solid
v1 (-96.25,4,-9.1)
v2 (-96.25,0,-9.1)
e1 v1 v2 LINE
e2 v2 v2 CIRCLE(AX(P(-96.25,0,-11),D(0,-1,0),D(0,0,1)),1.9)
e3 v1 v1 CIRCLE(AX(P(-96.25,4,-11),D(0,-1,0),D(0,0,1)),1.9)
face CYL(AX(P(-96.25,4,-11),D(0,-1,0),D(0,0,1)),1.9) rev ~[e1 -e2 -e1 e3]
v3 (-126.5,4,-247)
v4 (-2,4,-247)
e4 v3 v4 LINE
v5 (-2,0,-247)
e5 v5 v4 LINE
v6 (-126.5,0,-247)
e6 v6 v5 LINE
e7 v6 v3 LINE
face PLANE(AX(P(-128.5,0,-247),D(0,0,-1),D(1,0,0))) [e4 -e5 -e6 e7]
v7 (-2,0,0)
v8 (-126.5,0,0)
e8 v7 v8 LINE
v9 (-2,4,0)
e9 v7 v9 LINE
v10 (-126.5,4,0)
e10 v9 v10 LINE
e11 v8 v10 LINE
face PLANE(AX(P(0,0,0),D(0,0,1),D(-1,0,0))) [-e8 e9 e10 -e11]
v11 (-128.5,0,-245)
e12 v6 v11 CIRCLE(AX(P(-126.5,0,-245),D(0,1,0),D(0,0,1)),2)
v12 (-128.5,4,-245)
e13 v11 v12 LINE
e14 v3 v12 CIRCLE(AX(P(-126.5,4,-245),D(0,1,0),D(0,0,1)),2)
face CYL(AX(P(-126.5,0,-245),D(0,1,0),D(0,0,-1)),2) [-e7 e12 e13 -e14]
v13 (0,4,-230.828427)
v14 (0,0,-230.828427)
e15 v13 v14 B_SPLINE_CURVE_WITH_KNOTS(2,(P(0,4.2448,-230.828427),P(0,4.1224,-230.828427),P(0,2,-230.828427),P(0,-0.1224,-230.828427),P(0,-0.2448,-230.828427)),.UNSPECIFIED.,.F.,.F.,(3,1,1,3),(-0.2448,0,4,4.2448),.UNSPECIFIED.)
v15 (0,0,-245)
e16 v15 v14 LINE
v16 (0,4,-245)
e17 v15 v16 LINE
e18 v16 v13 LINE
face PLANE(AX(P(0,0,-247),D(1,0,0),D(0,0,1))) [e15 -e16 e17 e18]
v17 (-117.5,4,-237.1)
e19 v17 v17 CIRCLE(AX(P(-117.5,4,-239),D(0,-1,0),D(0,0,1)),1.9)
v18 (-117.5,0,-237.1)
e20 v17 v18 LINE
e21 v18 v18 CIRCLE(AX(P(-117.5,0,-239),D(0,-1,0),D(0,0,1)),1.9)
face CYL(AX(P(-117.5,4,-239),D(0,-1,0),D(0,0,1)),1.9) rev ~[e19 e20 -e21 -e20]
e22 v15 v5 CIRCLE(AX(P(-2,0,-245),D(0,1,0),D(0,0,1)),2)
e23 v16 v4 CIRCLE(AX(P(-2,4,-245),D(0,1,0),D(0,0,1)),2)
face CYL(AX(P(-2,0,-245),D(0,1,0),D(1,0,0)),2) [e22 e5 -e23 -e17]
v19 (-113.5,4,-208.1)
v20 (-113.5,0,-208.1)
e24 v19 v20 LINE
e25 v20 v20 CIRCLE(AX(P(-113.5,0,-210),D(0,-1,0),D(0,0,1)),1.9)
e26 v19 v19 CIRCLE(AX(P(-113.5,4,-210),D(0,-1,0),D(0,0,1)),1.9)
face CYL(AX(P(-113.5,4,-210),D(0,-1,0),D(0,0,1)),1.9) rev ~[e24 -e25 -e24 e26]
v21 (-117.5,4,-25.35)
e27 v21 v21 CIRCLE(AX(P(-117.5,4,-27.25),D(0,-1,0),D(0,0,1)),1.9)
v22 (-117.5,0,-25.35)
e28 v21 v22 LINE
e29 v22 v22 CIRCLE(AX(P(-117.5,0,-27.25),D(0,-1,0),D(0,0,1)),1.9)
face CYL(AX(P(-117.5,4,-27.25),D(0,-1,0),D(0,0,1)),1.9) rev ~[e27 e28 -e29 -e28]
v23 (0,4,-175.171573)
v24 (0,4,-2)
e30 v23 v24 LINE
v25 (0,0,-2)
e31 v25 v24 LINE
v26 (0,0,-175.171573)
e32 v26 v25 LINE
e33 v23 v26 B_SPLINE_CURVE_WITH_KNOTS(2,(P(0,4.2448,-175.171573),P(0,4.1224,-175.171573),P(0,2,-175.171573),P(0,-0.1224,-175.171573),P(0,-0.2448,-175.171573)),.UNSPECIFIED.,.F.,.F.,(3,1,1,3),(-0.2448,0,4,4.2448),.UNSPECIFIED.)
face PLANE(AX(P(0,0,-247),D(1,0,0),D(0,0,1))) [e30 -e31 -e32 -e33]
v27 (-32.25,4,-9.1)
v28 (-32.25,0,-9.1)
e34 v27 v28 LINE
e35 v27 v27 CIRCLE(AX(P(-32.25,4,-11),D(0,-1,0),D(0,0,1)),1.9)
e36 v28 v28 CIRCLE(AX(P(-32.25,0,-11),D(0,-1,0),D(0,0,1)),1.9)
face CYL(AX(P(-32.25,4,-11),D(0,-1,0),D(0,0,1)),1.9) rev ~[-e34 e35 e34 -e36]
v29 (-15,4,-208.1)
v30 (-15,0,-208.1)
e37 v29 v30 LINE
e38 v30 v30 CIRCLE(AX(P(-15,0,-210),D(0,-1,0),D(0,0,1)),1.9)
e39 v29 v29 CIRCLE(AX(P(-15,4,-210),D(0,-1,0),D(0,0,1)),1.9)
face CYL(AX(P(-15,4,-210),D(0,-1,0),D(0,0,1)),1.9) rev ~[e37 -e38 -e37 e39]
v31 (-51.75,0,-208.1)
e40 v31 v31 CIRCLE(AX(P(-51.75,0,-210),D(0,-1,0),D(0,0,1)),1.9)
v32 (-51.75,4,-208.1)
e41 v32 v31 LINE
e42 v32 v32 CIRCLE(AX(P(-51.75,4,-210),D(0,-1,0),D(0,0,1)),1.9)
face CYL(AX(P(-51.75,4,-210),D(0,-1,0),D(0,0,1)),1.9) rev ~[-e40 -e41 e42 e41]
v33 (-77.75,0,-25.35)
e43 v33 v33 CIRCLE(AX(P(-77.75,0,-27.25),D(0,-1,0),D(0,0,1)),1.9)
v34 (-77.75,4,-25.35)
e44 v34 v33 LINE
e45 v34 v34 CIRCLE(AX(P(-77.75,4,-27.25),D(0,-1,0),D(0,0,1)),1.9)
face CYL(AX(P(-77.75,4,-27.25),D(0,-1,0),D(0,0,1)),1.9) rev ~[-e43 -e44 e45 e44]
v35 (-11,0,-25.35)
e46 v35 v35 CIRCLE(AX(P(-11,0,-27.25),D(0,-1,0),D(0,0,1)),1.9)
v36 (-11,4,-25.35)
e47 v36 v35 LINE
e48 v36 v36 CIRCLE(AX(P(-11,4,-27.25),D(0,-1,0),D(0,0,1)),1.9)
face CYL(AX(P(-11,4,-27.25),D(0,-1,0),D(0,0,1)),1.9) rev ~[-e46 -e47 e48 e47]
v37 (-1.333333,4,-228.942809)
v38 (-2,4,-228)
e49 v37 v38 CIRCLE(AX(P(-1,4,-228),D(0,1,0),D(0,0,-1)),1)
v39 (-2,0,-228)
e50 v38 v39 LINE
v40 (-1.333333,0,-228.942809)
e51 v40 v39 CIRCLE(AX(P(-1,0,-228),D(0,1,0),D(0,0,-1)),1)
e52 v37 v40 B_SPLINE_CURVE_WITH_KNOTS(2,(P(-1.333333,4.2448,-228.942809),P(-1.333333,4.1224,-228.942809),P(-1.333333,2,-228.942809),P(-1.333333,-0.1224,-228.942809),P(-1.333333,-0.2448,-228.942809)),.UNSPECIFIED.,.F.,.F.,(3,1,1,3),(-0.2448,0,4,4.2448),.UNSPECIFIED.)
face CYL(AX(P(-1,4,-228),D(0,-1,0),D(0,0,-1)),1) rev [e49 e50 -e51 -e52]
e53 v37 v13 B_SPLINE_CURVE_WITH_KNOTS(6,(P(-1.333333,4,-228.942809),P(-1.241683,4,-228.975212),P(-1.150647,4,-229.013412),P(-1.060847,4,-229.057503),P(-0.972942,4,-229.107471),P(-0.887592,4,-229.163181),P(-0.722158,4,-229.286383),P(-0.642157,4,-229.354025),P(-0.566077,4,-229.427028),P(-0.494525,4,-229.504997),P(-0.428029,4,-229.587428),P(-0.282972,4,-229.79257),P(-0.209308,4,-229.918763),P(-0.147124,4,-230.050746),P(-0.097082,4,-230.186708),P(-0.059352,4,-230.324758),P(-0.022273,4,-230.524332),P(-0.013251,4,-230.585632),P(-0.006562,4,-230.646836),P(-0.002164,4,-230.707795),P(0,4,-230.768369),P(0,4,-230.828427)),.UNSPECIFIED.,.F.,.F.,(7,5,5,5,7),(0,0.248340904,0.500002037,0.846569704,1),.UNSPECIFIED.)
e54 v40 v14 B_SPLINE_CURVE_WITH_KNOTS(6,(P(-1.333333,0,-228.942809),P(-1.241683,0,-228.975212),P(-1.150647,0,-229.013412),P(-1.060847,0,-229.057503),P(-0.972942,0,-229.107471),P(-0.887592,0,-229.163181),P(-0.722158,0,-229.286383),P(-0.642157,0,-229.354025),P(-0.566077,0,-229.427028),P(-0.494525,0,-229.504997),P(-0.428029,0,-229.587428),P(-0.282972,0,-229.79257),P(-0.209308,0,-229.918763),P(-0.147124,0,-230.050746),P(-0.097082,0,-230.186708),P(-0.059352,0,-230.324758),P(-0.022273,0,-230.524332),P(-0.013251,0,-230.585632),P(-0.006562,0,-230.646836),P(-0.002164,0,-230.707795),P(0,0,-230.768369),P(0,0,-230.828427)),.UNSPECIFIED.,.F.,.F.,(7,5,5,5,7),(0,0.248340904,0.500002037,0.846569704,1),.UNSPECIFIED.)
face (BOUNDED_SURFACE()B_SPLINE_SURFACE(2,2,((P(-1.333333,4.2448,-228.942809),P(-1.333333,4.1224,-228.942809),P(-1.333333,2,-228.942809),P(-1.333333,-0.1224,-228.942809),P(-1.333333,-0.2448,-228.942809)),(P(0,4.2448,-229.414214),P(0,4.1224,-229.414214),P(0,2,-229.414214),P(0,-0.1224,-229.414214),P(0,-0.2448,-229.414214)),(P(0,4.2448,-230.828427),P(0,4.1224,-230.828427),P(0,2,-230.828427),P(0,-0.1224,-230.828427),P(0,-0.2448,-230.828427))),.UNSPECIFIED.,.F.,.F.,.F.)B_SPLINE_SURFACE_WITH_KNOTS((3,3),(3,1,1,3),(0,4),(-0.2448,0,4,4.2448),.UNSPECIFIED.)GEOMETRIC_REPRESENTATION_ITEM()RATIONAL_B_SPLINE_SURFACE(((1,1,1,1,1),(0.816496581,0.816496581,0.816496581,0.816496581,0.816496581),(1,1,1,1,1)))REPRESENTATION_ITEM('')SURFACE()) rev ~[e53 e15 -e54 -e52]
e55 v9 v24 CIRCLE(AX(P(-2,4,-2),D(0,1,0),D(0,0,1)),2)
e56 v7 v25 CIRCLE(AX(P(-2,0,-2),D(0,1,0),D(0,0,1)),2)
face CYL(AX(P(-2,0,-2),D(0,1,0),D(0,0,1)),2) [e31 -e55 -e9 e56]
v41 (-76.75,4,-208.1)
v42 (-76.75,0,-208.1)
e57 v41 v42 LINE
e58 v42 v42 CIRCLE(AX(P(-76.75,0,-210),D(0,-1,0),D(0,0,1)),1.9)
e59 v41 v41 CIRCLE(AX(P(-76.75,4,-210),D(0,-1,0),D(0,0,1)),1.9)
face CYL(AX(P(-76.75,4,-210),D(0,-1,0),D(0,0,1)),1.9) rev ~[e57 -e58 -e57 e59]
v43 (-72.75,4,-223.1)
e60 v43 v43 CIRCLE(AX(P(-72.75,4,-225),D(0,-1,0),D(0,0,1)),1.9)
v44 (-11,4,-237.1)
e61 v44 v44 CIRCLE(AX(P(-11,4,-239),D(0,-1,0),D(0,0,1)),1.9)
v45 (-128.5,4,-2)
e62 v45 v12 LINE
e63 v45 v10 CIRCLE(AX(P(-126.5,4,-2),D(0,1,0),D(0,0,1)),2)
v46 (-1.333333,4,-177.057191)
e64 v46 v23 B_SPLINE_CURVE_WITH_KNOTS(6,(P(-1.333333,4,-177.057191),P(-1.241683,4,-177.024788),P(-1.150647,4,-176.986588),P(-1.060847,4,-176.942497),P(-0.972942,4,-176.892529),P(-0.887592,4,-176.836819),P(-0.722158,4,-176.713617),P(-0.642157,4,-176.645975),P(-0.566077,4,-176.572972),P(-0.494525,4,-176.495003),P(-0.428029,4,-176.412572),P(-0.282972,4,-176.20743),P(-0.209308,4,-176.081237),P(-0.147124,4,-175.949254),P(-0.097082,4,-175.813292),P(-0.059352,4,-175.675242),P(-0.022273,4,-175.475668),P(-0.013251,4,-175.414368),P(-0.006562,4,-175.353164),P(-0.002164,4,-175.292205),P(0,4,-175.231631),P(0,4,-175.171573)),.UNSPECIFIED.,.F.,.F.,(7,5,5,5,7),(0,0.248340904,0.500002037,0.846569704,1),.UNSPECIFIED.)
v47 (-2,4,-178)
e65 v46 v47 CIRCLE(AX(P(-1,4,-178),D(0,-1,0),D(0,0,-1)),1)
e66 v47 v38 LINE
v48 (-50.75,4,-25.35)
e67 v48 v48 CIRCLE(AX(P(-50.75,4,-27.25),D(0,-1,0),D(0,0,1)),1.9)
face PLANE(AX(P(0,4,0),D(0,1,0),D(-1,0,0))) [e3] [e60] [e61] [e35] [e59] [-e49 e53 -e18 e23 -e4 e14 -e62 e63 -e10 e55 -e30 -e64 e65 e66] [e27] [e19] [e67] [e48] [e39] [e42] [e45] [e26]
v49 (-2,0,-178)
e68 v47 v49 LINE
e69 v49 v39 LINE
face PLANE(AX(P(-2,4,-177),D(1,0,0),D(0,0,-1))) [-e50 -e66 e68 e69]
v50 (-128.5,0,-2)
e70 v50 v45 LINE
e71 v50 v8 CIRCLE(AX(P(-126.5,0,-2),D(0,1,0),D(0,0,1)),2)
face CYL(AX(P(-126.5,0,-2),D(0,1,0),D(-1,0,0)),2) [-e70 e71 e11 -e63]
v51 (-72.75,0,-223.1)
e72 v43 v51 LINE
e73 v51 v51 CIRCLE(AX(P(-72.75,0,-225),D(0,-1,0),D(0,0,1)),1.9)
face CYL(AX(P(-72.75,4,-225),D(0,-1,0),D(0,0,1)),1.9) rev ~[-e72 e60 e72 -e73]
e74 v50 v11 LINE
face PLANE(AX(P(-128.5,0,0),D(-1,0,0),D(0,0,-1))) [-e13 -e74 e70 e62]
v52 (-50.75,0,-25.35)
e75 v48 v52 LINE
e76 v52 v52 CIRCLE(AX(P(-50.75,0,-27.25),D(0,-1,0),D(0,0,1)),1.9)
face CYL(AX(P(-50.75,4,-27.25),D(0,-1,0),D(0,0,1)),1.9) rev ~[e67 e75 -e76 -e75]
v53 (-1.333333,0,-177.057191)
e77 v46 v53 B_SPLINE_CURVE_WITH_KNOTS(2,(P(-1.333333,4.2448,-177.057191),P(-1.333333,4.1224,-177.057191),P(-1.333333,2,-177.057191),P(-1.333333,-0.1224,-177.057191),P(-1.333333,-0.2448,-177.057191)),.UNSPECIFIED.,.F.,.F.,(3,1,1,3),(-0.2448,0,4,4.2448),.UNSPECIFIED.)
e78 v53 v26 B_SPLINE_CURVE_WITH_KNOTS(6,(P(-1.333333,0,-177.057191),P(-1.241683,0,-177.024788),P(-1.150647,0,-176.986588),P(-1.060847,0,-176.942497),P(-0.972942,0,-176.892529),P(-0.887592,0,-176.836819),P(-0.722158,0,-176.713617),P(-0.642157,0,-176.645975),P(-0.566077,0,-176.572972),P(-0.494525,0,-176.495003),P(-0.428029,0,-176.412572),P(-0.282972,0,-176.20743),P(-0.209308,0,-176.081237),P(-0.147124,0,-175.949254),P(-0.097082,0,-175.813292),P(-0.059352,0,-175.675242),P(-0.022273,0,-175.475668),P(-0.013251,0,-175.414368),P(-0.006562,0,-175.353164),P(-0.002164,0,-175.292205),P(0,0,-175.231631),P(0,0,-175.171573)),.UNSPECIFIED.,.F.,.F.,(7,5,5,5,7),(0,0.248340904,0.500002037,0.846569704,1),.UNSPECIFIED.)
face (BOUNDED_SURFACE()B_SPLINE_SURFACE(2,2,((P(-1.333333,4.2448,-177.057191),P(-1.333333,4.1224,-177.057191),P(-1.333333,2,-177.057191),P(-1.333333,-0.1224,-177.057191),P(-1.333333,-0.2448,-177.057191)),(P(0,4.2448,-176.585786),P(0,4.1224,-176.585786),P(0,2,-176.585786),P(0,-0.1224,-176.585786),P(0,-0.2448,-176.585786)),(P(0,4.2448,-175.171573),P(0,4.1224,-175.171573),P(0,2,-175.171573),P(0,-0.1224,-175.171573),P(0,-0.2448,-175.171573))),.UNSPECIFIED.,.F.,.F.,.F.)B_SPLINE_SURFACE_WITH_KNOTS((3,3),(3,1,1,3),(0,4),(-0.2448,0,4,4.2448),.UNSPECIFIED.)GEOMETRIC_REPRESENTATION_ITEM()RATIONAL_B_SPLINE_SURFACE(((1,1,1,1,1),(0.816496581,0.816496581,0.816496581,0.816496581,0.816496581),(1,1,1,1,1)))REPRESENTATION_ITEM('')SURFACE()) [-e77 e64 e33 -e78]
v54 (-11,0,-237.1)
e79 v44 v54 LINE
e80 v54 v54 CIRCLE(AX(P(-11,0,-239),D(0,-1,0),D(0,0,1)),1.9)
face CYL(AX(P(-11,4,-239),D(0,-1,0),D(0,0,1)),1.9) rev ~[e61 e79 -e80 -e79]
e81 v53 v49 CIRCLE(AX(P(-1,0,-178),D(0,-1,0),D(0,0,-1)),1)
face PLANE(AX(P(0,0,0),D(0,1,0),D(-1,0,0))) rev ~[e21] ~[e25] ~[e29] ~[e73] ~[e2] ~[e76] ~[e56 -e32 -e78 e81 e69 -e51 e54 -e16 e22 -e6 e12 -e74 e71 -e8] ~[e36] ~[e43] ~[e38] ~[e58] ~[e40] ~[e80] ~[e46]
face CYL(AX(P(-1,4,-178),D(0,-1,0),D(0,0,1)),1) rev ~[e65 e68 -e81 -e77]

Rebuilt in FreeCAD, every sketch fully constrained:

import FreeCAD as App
import Part
import Sketcher
from FreeCAD import Vector
Q = App.Units.Quantity


def edges_at(feature, points):
    """Names of the edges that pass closest to the given points."""
    edges = feature.Shape.Edges
    near = lambda p: min(range(len(edges)), key=lambda i: edges[i].distToShape(Part.Vertex(*p))[0])
    return sorted({f"Edge{near(p) + 1}" for p in points})

doc = App.newDocument("Part")
params = doc.addObject("Spreadsheet::Sheet", "Params")
for row, (alias, value) in enumerate([
    ("sketch1_height", "247 mm"),
    ("sketch1_width", "128.5 mm"),
    ("pad1_length", "4 mm"),
    ("sketch2_width", "2 mm"),
    ("sketch2_height", "52 mm"),
    ("pocket1_length", "4 mm"),
    ("fillet_radius", "1 mm"),
    ("sketch3_diameter", "3.8 mm"),
    ("hole_diameter", "3.8 mm"),
    ("sketch4_diameter", "3.8 mm"),
    ("hole2_diameter", "3.8 mm"),
    ("fillet2_radius", "2 mm"),
], start=1):
    params.set(f"A{row}", alias)
    params.set(f"B{row}", "=" + value)
    params.setAlias(f"B{row}", alias)

body = doc.addObject("PartDesign::Body", "Body")

sketch1 = doc.addObject("Sketcher::SketchObject", "Sketch")
body.addObject(sketch1)
sketch1.AttachmentSupport = (doc.XZ_Plane, [""])
sketch1.MapMode = "FlatFace"
sketch1.addGeometry([
    Part.LineSegment(Vector(-128, 0, 0), Vector(0, 0, 0)),
    Part.LineSegment(Vector(0, 0, 0), Vector(0, -247, 0)),
    Part.LineSegment(Vector(0, -247, 0), Vector(-128, -247, 0)),
    Part.LineSegment(Vector(-128, -247, 0), Vector(-128, 0, 0)),
], False)
sketch1.addConstraint([
    Sketcher.Constraint("Coincident", 0, 2, 1, 1),
    Sketcher.Constraint("Coincident", 1, 2, 2, 1),
    Sketcher.Constraint("Coincident", 2, 2, 3, 1),
    Sketcher.Constraint("Coincident", 3, 2, 0, 1),
    Sketcher.Constraint("Horizontal", 0),
    Sketcher.Constraint("Vertical", 1),
    Sketcher.Constraint("Horizontal", 2),
    Sketcher.Constraint("Vertical", 3),
    Sketcher.Constraint("Coincident", 0, 2, -1, 1),
    Sketcher.Constraint("DistanceY", 1, 2, 1, 1, Q("247 mm")),
    Sketcher.Constraint("DistanceX", 0, 1, 0, 2, Q("128.5 mm")),
])
sketch1.setExpression("Constraints[9]", "Params.sketch1_height")
sketch1.setExpression("Constraints[10]", "Params.sketch1_width")
pad1 = doc.addObject("PartDesign::Pad", "Pad")
body.addObject(pad1)
pad1.Profile = sketch1
pad1.setExpression("Length", "Params.pad1_length")
pad1.Reversed = True

sketch2 = doc.addObject("Sketcher::SketchObject", "Sketch001")
body.addObject(sketch2)
sketch2.AttachmentSupport = (doc.XZ_Plane, [""])
sketch2.MapMode = "FlatFace"
sketch2.AttachmentOffset = App.Placement(Vector(0, 0, -4), App.Rotation())
sketch2.addGeometry([
    Part.LineSegment(Vector(-2, -177, 0), Vector(0, -177, 0)),
    Part.LineSegment(Vector(0, -177, 0), Vector(0, -229, 0)),
    Part.LineSegment(Vector(0, -229, 0), Vector(-2, -229, 0)),
    Part.LineSegment(Vector(-2, -229, 0), Vector(-2, -177, 0)),
], False)
sketch2.addConstraint([
    Sketcher.Constraint("Coincident", 0, 2, 1, 1),
    Sketcher.Constraint("Coincident", 1, 2, 2, 1),
    Sketcher.Constraint("Coincident", 2, 2, 3, 1),
    Sketcher.Constraint("Coincident", 3, 2, 0, 1),
    Sketcher.Constraint("Horizontal", 0),
    Sketcher.Constraint("Vertical", 1),
    Sketcher.Constraint("Horizontal", 2),
    Sketcher.Constraint("Vertical", 3),
    Sketcher.Constraint("PointOnObject", 0, 2, -2),
    Sketcher.Constraint("DistanceX", 0, 1, 0, 2, Q("2 mm")),
    Sketcher.Constraint("DistanceY", 1, 2, 1, 1, Q("52 mm")),
    Sketcher.Constraint("DistanceY", 0, 2, -1, 1, Q("177 mm")),
])
sketch2.setExpression("Constraints[9]", "Params.sketch2_width")
sketch2.setExpression("Constraints[10]", "Params.sketch2_height")
pocket1 = doc.addObject("PartDesign::Pocket", "Pocket")
body.addObject(pocket1)
pocket1.Profile = sketch2
pocket1.setExpression("Length", "Params.pocket1_length")
pocket1.Reversed = True
doc.recompute()

fillet = doc.addObject("PartDesign::Fillet", "Fillet")
body.addObject(fillet)
fillet.Base = (pocket1, edges_at(pocket1, [(-2, 2, -229), (-2, 2, -177)]))
fillet.setExpression("Radius", "Params.fillet_radius")

sketch3 = doc.addObject("Sketcher::SketchObject", "Sketch002")
body.addObject(sketch3)
sketch3.AttachmentSupport = (doc.XZ_Plane, [""])
sketch3.MapMode = "FlatFace"
sketch3.AttachmentOffset = App.Placement(Vector(0, 0, -4), App.Rotation())
sketch3.addGeometry([
    Part.Circle(Vector(-11, -27.2, 0), Vector(0, 0, 1), 1.9),
    Part.Circle(Vector(-117.5, -27.2, 0), Vector(0, 0, 1), 1.9),
    Part.Circle(Vector(-50.8, -27.2, 0), Vector(0, 0, 1), 1.9),
    Part.Circle(Vector(-77.8, -27.2, 0), Vector(0, 0, 1), 1.9),
    Part.Circle(Vector(-96.2, -11, 0), Vector(0, 0, 1), 1.9),
    Part.Circle(Vector(-32.2, -11, 0), Vector(0, 0, 1), 1.9),
    Part.Circle(Vector(-117.5, -239, 0), Vector(0, 0, 1), 1.9),
    Part.Circle(Vector(-72.8, -225, 0), Vector(0, 0, 1), 1.9),
    Part.Circle(Vector(-11, -239, 0), Vector(0, 0, 1), 1.9),
], False)
sketch3.addConstraint([
    Sketcher.Constraint("Equal", 0, 1),
    Sketcher.Constraint("Equal", 1, 2),
    Sketcher.Constraint("Equal", 2, 3),
    Sketcher.Constraint("Equal", 3, 4),
    Sketcher.Constraint("Equal", 4, 5),
    Sketcher.Constraint("Equal", 5, 6),
    Sketcher.Constraint("Equal", 6, 7),
    Sketcher.Constraint("Equal", 7, 8),
    Sketcher.Constraint("Horizontal", 0, 3, 1, 3),
    Sketcher.Constraint("Horizontal", 1, 3, 2, 3),
    Sketcher.Constraint("Horizontal", 2, 3, 3, 3),
    Sketcher.Constraint("Horizontal", 4, 3, 5, 3),
    Sketcher.Constraint("Horizontal", 6, 3, 8, 3),
    Sketcher.Constraint("Vertical", 1, 3, 6, 3),
    Sketcher.Constraint("Vertical", 0, 3, 8, 3),
    Sketcher.Constraint("Diameter", 0, Q("3.8 mm")),
    Sketcher.Constraint("DistanceX", 0, 3, -1, 1, Q("11 mm")),
    Sketcher.Constraint("DistanceY", 4, 3, -1, 1, Q("11 mm")),
    Sketcher.Constraint("DistanceY", 6, 3, -1, 1, Q("239 mm")),
    Sketcher.Constraint("DistanceY", 7, 3, -1, 1, Q("225 mm")),
    Sketcher.Constraint("DistanceX", 3, 3, 2, 3, Q("27 mm")),
    Sketcher.Constraint("DistanceX", 4, 3, 5, 3, Q("64 mm")),
    Sketcher.Constraint("DistanceX", 3, 3, 7, 3, Q("5 mm")),
    Sketcher.Constraint("DistanceX", 1, 3, -1, 1, Q("117.5 mm")),
    Sketcher.Constraint("DistanceX", 4, 3, 3, 3, Q("18.5 mm")),
    Sketcher.Constraint("DistanceY", 0, 3, -1, 1, Q("27.25 mm")),
    Sketcher.Constraint("DistanceX", 2, 3, -1, 1, Q("50.75 mm")),
])
sketch3.setExpression("Constraints[15]", "Params.sketch3_diameter")
doc.recompute()
hole = doc.addObject("PartDesign::Hole", "Hole")
body.addObject(hole)
hole.Profile = sketch3
hole.ThreadType = "None"
hole.setExpression("Diameter", "Params.hole_diameter")
hole.DepthType = "ThroughAll"
hole.Reversed = True

sketch4 = doc.addObject("Sketcher::SketchObject", "Sketch003")
body.addObject(sketch4)
sketch4.AttachmentSupport = (doc.XZ_Plane, [""])
sketch4.MapMode = "FlatFace"
sketch4.AttachmentOffset = App.Placement(Vector(0, 0, -4), App.Rotation())
sketch4.addGeometry([
    Part.Circle(Vector(-113.5, -210, 0), Vector(0, 0, 1), 1.9),
    Part.Circle(Vector(-76.8, -210, 0), Vector(0, 0, 1), 1.9),
    Part.Circle(Vector(-51.8, -210, 0), Vector(0, 0, 1), 1.9),
    Part.Circle(Vector(-15, -210, 0), Vector(0, 0, 1), 1.9),
], False)
sketch4.addConstraint([
    Sketcher.Constraint("Equal", 0, 1),
    Sketcher.Constraint("Equal", 1, 2),
    Sketcher.Constraint("Equal", 2, 3),
    Sketcher.Constraint("Horizontal", 0, 3, 1, 3),
    Sketcher.Constraint("Horizontal", 1, 3, 2, 3),
    Sketcher.Constraint("Horizontal", 2, 3, 3, 3),
    Sketcher.Constraint("Diameter", 0, Q("3.8 mm")),
    Sketcher.Constraint("DistanceY", 0, 3, -1, 1, Q("210 mm")),
    Sketcher.Constraint("DistanceX", 3, 3, -1, 1, Q("15 mm")),
    Sketcher.Constraint("DistanceX", 1, 3, 2, 3, Q("25 mm")),
    Sketcher.Constraint("DistanceX", 0, 3, -1, 1, Q("113.5 mm")),
    Sketcher.Constraint("DistanceX", 1, 3, -1, 1, Q("76.75 mm")),
])
sketch4.setExpression("Constraints[6]", "Params.sketch4_diameter")
doc.recompute()
hole2 = doc.addObject("PartDesign::Hole", "Hole001")
body.addObject(hole2)
hole2.Profile = sketch4
hole2.ThreadType = "None"
hole2.setExpression("Diameter", "Params.hole2_diameter")
hole2.DepthType = "ThroughAll"
hole2.Reversed = True
doc.recompute()

fillet2 = doc.addObject("PartDesign::Fillet", "Fillet001")
body.addObject(fillet2)
fillet2.Base = (hole2, edges_at(hole2, [
    (0, 2, -229),
    (0, 2, -177),
    (0, 2, -247),
    (-128.5, 2, -247),
    (0, 2, 0),
    (-128.5, 2, 0),
]))
fillet2.setExpression("Radius", "Params.fillet2_radius")

doc.recompute()
